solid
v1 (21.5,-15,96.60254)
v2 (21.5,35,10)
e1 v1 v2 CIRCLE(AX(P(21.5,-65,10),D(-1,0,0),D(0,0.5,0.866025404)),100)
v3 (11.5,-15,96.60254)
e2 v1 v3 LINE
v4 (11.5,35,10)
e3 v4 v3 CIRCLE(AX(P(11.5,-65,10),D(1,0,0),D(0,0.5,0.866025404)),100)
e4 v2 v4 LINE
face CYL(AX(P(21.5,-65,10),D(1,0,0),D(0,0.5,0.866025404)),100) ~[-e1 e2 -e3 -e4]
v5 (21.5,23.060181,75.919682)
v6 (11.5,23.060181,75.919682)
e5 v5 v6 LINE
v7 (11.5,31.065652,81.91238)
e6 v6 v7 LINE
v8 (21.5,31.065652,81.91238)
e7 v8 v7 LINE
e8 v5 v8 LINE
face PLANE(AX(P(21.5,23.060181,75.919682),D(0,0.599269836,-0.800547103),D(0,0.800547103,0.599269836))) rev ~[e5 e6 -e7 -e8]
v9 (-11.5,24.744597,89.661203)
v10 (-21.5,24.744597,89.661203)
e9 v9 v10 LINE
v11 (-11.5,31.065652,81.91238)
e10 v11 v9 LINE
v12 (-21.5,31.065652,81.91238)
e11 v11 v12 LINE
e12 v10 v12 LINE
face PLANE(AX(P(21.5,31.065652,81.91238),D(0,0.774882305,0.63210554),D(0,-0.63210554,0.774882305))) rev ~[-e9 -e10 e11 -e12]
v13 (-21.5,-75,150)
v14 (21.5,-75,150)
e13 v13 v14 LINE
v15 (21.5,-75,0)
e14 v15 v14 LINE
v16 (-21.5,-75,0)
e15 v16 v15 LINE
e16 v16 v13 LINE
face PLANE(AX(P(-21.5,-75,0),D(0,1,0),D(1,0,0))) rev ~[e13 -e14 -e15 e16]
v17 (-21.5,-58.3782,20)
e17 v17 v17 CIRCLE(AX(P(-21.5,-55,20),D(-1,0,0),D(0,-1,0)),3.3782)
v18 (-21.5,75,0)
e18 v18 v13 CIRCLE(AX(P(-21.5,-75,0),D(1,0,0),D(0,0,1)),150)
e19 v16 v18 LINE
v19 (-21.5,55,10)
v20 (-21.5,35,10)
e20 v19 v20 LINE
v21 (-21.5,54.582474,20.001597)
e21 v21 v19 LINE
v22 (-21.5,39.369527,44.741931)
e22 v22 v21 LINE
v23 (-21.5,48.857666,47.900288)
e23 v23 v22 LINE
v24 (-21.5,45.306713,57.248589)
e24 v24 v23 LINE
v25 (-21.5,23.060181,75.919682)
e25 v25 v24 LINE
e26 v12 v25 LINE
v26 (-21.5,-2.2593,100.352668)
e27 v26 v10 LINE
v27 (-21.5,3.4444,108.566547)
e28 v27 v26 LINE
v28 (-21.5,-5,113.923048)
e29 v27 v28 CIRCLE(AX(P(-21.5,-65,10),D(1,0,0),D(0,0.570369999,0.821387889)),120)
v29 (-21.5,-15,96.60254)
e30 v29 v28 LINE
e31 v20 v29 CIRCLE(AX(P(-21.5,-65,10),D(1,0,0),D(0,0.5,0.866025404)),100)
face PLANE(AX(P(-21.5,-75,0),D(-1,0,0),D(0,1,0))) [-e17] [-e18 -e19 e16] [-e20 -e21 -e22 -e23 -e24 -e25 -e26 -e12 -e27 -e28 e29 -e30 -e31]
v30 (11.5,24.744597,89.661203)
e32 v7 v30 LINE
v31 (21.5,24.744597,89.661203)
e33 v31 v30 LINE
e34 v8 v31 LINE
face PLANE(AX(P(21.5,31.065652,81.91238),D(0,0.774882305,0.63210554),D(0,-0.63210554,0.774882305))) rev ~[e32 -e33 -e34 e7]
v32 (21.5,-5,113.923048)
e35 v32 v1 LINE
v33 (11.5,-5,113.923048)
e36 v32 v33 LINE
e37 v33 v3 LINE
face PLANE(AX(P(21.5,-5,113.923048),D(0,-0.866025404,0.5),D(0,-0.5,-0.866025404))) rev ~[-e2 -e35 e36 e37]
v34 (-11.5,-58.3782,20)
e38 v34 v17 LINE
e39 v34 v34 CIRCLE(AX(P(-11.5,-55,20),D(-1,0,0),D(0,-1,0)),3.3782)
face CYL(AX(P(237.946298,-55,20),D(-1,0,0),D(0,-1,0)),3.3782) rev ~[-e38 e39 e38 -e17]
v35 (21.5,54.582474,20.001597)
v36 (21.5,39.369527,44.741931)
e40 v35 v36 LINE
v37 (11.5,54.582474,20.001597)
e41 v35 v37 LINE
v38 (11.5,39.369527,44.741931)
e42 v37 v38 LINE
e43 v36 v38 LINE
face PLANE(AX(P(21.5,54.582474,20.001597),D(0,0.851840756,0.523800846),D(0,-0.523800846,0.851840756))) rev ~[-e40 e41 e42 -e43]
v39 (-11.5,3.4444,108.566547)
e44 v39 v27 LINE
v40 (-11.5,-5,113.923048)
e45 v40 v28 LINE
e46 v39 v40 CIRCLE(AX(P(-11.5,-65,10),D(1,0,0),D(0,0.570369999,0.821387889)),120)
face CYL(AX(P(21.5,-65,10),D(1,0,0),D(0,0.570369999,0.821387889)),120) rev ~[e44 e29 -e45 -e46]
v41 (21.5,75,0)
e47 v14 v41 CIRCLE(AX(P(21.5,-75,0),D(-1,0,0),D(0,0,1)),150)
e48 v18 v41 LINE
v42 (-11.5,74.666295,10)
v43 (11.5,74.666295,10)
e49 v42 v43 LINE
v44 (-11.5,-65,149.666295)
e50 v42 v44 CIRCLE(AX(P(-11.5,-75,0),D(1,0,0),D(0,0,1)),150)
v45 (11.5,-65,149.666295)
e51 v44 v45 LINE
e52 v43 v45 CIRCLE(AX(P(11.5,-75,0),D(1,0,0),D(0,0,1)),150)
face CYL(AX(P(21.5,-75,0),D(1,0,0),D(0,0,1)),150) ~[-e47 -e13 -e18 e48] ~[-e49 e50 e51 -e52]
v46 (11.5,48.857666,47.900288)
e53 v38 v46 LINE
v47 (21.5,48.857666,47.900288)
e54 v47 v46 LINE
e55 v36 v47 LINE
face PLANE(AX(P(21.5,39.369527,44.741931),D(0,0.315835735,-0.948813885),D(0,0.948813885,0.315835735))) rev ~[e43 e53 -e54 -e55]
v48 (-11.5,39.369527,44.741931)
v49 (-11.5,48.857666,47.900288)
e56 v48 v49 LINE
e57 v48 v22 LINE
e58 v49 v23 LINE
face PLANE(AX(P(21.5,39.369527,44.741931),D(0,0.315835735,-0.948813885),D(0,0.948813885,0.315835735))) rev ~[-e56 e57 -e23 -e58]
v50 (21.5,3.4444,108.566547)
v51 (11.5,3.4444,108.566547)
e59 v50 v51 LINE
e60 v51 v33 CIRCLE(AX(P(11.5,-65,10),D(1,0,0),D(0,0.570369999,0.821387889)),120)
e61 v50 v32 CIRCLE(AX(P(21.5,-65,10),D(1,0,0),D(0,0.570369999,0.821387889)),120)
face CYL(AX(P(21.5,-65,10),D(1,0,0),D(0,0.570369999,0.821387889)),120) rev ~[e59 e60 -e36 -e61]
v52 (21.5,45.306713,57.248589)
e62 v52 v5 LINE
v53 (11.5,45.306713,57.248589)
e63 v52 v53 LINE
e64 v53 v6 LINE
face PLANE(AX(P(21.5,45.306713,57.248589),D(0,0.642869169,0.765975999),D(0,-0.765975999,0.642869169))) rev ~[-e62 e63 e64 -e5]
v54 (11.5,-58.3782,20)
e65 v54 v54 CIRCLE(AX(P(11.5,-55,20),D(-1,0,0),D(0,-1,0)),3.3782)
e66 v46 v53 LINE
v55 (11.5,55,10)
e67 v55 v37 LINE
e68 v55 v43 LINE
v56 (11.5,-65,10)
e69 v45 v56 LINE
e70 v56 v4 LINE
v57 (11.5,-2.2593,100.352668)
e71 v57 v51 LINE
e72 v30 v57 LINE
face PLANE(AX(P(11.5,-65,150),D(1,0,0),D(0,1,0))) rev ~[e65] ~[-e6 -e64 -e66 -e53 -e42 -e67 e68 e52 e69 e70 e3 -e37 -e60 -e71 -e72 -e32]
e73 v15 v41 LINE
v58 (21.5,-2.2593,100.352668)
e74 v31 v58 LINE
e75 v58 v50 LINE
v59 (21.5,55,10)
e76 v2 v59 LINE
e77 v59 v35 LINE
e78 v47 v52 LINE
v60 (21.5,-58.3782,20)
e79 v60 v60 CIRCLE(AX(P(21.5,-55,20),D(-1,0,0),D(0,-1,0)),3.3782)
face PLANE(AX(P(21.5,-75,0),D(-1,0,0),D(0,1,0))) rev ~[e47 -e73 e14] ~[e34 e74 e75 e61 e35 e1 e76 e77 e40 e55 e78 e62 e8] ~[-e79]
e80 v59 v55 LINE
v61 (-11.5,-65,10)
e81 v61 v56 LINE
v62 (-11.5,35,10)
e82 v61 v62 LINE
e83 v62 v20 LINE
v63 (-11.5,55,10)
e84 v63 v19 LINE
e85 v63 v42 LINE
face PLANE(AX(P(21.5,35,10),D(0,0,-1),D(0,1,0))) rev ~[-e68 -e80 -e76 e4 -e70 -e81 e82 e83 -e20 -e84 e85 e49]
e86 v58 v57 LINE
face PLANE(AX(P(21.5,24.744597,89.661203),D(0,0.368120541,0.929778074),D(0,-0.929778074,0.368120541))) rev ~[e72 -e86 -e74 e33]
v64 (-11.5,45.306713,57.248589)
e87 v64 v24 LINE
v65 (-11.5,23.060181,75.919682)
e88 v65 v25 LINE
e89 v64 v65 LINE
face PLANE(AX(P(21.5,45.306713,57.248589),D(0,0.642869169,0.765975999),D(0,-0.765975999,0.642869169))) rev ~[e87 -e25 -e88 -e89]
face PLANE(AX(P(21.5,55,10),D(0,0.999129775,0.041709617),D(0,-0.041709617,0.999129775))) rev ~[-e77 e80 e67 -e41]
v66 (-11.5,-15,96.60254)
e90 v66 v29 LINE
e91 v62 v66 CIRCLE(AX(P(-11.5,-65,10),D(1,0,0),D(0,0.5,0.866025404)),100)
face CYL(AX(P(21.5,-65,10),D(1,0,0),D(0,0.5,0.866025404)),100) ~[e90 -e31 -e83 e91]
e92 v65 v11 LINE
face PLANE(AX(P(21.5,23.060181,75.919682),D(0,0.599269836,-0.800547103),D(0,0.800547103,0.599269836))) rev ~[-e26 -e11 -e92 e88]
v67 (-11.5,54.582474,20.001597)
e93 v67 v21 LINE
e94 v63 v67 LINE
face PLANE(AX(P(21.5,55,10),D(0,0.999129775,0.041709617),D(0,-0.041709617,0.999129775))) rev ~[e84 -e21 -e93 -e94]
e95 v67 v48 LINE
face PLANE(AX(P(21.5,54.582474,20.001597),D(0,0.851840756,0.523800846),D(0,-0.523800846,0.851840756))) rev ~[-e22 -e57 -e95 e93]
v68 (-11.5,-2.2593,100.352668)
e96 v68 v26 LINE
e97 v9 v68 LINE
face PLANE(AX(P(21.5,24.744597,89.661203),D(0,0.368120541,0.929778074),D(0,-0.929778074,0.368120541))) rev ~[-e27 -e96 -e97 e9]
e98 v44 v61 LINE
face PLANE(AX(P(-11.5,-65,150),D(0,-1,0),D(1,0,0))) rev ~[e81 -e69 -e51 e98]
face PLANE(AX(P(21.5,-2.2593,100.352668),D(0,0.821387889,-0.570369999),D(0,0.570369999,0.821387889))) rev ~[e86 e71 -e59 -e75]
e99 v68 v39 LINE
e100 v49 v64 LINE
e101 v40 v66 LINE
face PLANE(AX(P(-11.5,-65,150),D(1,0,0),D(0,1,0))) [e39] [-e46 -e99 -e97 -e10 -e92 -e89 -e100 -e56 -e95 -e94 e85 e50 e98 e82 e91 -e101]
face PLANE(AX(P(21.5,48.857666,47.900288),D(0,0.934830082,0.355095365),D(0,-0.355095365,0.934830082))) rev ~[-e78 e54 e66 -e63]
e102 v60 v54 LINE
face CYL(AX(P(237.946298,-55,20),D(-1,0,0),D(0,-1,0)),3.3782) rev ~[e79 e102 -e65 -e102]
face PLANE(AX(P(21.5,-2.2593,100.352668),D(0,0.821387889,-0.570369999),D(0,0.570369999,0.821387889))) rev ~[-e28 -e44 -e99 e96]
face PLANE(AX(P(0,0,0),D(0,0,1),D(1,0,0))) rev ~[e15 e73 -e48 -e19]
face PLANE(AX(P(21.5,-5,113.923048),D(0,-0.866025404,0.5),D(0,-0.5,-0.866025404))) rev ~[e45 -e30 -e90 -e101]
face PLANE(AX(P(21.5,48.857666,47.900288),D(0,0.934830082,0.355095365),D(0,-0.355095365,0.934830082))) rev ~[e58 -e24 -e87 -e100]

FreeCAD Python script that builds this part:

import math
import FreeCAD as App
import Part
import Sketcher
from FreeCAD import Vector
Q = App.Units.Quantity


def add_polygon(sketch, points):
    """Adds a closed chain of lines whose ends are joined by coincident constraints."""
    first, n = sketch.GeometryCount, len(points)
    for a, b in zip(points, points[1:] + points[:1]):
        sketch.addGeometry(Part.LineSegment(App.Vector(*a, 0), App.Vector(*b, 0)), False)
    for i in range(n):
        sketch.addConstraint(Sketcher.Constraint("Coincident", first + i, 2, first + (i + 1) % n, 1))

doc = App.newDocument("Part")
params = doc.addObject("Spreadsheet::Sheet", "Params")
for row, (alias, value) in enumerate([
    ("sketch1_width", "43 mm"),
    ("sketch1_height", "150 mm"),
    ("pad1_length", "150 mm"),
    ("sketch2_width", "23 mm"),
    ("sketch2_height", "140 mm"),
    ("pocket1_length", "140 mm"),
    ("sketch3_radius", "150 mm"),
    ("hole_diameter", "6.7564 mm"),
    ("sketch5_radius", "100 mm"),
    ("sketch5_radius2", "120 mm"),
    ("sketch5_width", "20 mm"),
    ("sketch5_length", "10 mm"),
], start=1):
    params.set(f"A{row}", alias)
    params.set(f"B{row}", "=" + value)
    params.setAlias(f"B{row}", alias)

body = doc.addObject("PartDesign::Body", "Body")

sketch1 = doc.addObject("Sketcher::SketchObject", "Sketch")
body.addObject(sketch1)
sketch1.AttachmentSupport = (doc.XY_Plane, [""])
sketch1.MapMode = "FlatFace"
add_polygon(sketch1, [(-22, 75), (-22, -75), (22, -75), (22, 75)])
sketch1.addConstraint([
    Sketcher.Constraint("Vertical", 0),
    Sketcher.Constraint("Horizontal", 1),
    Sketcher.Constraint("Vertical", 2),
    Sketcher.Constraint("Horizontal", 3),
    Sketcher.Constraint("Symmetric", 0, 2, 2, 2, -1, 1),
    Sketcher.Constraint("DistanceX", 1, 1, 1, 2, 43.0),
    Sketcher.Constraint("DistanceY", 0, 2, 0, 1, 150.0),
])
sketch1.setExpression("Constraints[9]", "Params.sketch1_width")
sketch1.setExpression("Constraints[10]", "Params.sketch1_height")
pad1 = doc.addObject("PartDesign::Pad", "Pad")
body.addObject(pad1)
pad1.Profile = sketch1
pad1.setExpression("Length", "Params.pad1_length")

sketch2 = doc.addObject("Sketcher::SketchObject", "Sketch001")
body.addObject(sketch2)
sketch2.AttachmentSupport = (doc.XY_Plane, [""])
sketch2.MapMode = "FlatFace"
sketch2.AttachmentOffset = App.Placement(Vector(0, 0, 150), App.Rotation())
add_polygon(sketch2, [(-12, 75), (-12, -65), (12, -65), (12, 75)])
sketch2.addConstraint([
    Sketcher.Constraint("Vertical", 0),
    Sketcher.Constraint("Horizontal", 1),
    Sketcher.Constraint("Vertical", 2),
    Sketcher.Constraint("Horizontal", 3),
    Sketcher.Constraint("DistanceX", 1, 1, 1, 2, 23.0),
    Sketcher.Constraint("DistanceY", 0, 2, 0, 1, 140.0),
    Sketcher.Constraint("DistanceY", 0, 2, -1, 1, 65.0),
    Sketcher.Constraint("DistanceX", 0, 2, -1, 1, 11.5),
])
sketch2.setExpression("Constraints[8]", "Params.sketch2_width")
sketch2.setExpression("Constraints[9]", "Params.sketch2_height")
pocket1 = doc.addObject("PartDesign::Pocket", "Pocket")
body.addObject(pocket1)
pocket1.Profile = sketch2
pocket1.setExpression("Length", "Params.pocket1_length")

sketch3 = doc.addObject("Sketcher::SketchObject", "Sketch002")
body.addObject(sketch3)
sketch3.AttachmentSupport = (doc.YZ_Plane, [""])
sketch3.MapMode = "FlatFace"
sketch3.AttachmentOffset = App.Placement(Vector(0, 0, 21.5), App.Rotation())
sketch3.addGeometry([
    Part.LineSegment(Vector(75, 150, 0), Vector(-75, 150, 0)),
    Part.ArcOfCircle(Part.Circle(Vector(-75, 0, 0), Vector(0, 0, 1), 150), math.radians(0), math.radians(90)),
    Part.LineSegment(Vector(75, 0, 0), Vector(75, 150, 0)),
], False)
sketch3.addConstraint([
    Sketcher.Constraint("Tangent", 0, 2, 1, 2),
    Sketcher.Constraint("Tangent", 1, 1, 2, 1),
    Sketcher.Constraint("Coincident", 2, 2, 0, 1),
    Sketcher.Constraint("Horizontal", 0),
    Sketcher.Constraint("Vertical", 2),
    Sketcher.Constraint("PointOnObject", 1, 3, -1),
    Sketcher.Constraint("Radius", 1, 150.0),
    Sketcher.Constraint("DistanceX", 1, 3, -1, 1, 75.0),
])
sketch3.setExpression("Constraints[6]", "Params.sketch3_radius")
pocket2 = doc.addObject("PartDesign::Pocket", "Pocket001")
body.addObject(pocket2)
pocket2.Profile = sketch3
pocket2.Type = "ThroughAll"

sketch4 = doc.addObject("Sketcher::SketchObject", "Sketch003")
body.addObject(sketch4)
sketch4.AttachmentSupport = (doc.YZ_Plane, [""])
sketch4.MapMode = "FlatFace"
sketch4.AttachmentOffset = App.Placement(Vector(0, 0, 21.5), App.Rotation())
sketch4.addGeometry(Part.Circle(Vector(-55, 20, 0), Vector(0, 0, 1), 3.4), False)
sketch4.addConstraint([
    Sketcher.Constraint("DistanceX", 0, 3, -1, 1, 55.0),
    Sketcher.Constraint("DistanceY", -1, 1, 0, 3, 20.0),
    Sketcher.Constraint("Diameter", 0, 6.7564),
])
doc.recompute()
hole = doc.addObject("PartDesign::Hole", "Hole")
body.addObject(hole)
hole.Profile = sketch4
hole.ThreadType = "None"
hole.setExpression("Diameter", "Params.hole_diameter")
hole.DepthType = "ThroughAll"

sketch5 = doc.addObject("Sketcher::SketchObject", "Sketch004")
body.addObject(sketch5)
sketch5.AttachmentSupport = (doc.YZ_Plane, [""])
sketch5.MapMode = "FlatFace"
sketch5.AttachmentOffset = App.Placement(Vector(0, 0, 21.5), App.Rotation())
sketch5.addGeometry([
    Part.LineSegment(Vector(-5, 114, 0), Vector(-15, 97, 0)),
    Part.ArcOfCircle(Part.Circle(Vector(-65, 10, 0), Vector(0, 0, 1), 100), math.radians(0), math.radians(60)),
    Part.LineSegment(Vector(35, 10, 0), Vector(55, 10, 0)),
    Part.LineSegment(Vector(55, 10, 0), Vector(55, 20, 0)),
    Part.LineSegment(Vector(55, 20, 0), Vector(39, 45, 0)),
    Part.LineSegment(Vector(39, 45, 0), Vector(49, 48, 0)),
    Part.LineSegment(Vector(49, 48, 0), Vector(45, 57, 0)),
    Part.LineSegment(Vector(45, 57, 0), Vector(23, 76, 0)),
    Part.LineSegment(Vector(23, 76, 0), Vector(31, 82, 0)),
    Part.LineSegment(Vector(31, 82, 0), Vector(25, 90, 0)),
    Part.LineSegment(Vector(25, 90, 0), Vector(-2, 100, 0)),
    Part.LineSegment(Vector(-2, 100, 0), Vector(3, 109, 0)),
    Part.ArcOfCircle(Part.Circle(Vector(-65, 10, 0), Vector(0, 0, 1), 120), math.radians(55.22), math.radians(60)),
], False)
sketch5.addConstraint([
    Sketcher.Constraint("Coincident", 0, 2, 1, 2),
    Sketcher.Constraint("Coincident", 1, 1, 2, 1),
    Sketcher.Constraint("Coincident", 2, 2, 3, 1),
    Sketcher.Constraint("Coincident", 3, 2, 4, 1),
    Sketcher.Constraint("Coincident", 4, 2, 5, 1),
    Sketcher.Constraint("Coincident", 5, 2, 6, 1),
    Sketcher.Constraint("Coincident", 6, 2, 7, 1),
    Sketcher.Constraint("Coincident", 7, 2, 8, 1),
    Sketcher.Constraint("Coincident", 8, 2, 9, 1),
    Sketcher.Constraint("Coincident", 9, 2, 10, 1),
    Sketcher.Constraint("Coincident", 10, 2, 11, 1),
    Sketcher.Constraint("Coincident", 11, 2, 12, 1),
    Sketcher.Constraint("Coincident", 12, 2, 0, 1),
    Sketcher.Constraint("Horizontal", 2),
    Sketcher.Constraint("Coincident", 12, 3, 1, 3),
    Sketcher.Constraint("Horizontal", 12, 3, 1, 1),
    Sketcher.Constraint("Equal", 5, 6),
    Sketcher.Constraint("Equal", 4, 7),
    Sketcher.Constraint("Equal", 6, 8),
    Sketcher.Constraint("Equal", 8, 9),
    Sketcher.Constraint("Equal", 7, 10),
    Sketcher.Constraint("Equal", 9, 11),
    Sketcher.Constraint("Radius", 1, 100.0),
    Sketcher.Constraint("Radius", 12, 120.0),
    Sketcher.Constraint("DistanceX", 2, 1, 2, 2, 20.0),
    Sketcher.Constraint("Angle", 0, Q("-120 deg")),
    Sketcher.Constraint("Distance", 5, 10.0),
    Sketcher.Constraint("DistanceX", 1, 3, -1, 1, 65.0),
    Sketcher.Constraint("DistanceY", -1, 1, 1, 3, 10.0),
    Sketcher.Constraint("DistanceX", 0, 2, -1, 1, 15.0),
    Sketcher.Constraint("DistanceX", 10, 2, -1, 1, 2.2593),
    Sketcher.Constraint("DistanceX", -1, 1, 11, 2, 3.4444),
    Sketcher.Constraint("DistanceY", 5, 2, 6, 2, 9.348301),
    Sketcher.Constraint("DistanceY", 7, 2, 8, 2, 5.992698),
    Sketcher.Constraint("Distance", 3, 10.010308),
    Sketcher.Constraint("Distance", 4, 29.043379),
    Sketcher.Constraint("DistanceY", -1, 1, 4, 2, 44.741931),
    Sketcher.Constraint("DistanceY", -1, 1, 5, 2, 47.900288),
    Sketcher.Constraint("DistanceX", -1, 1, 7, 2, 23.060181),
    Sketcher.Constraint("DistanceY", -1, 1, 7, 2, 75.919682),
])
sketch5.setExpression("Constraints[22]", "Params.sketch5_radius")
sketch5.setExpression("Constraints[23]", "Params.sketch5_radius2")
sketch5.setExpression("Constraints[24]", "Params.sketch5_width")
sketch5.setExpression("Constraints[26]", "Params.sketch5_length")
pocket3 = doc.addObject("PartDesign::Pocket", "Pocket002")
body.addObject(pocket3)
pocket3.Profile = sketch5
pocket3.Type = "ThroughAll"

doc.recompute()
